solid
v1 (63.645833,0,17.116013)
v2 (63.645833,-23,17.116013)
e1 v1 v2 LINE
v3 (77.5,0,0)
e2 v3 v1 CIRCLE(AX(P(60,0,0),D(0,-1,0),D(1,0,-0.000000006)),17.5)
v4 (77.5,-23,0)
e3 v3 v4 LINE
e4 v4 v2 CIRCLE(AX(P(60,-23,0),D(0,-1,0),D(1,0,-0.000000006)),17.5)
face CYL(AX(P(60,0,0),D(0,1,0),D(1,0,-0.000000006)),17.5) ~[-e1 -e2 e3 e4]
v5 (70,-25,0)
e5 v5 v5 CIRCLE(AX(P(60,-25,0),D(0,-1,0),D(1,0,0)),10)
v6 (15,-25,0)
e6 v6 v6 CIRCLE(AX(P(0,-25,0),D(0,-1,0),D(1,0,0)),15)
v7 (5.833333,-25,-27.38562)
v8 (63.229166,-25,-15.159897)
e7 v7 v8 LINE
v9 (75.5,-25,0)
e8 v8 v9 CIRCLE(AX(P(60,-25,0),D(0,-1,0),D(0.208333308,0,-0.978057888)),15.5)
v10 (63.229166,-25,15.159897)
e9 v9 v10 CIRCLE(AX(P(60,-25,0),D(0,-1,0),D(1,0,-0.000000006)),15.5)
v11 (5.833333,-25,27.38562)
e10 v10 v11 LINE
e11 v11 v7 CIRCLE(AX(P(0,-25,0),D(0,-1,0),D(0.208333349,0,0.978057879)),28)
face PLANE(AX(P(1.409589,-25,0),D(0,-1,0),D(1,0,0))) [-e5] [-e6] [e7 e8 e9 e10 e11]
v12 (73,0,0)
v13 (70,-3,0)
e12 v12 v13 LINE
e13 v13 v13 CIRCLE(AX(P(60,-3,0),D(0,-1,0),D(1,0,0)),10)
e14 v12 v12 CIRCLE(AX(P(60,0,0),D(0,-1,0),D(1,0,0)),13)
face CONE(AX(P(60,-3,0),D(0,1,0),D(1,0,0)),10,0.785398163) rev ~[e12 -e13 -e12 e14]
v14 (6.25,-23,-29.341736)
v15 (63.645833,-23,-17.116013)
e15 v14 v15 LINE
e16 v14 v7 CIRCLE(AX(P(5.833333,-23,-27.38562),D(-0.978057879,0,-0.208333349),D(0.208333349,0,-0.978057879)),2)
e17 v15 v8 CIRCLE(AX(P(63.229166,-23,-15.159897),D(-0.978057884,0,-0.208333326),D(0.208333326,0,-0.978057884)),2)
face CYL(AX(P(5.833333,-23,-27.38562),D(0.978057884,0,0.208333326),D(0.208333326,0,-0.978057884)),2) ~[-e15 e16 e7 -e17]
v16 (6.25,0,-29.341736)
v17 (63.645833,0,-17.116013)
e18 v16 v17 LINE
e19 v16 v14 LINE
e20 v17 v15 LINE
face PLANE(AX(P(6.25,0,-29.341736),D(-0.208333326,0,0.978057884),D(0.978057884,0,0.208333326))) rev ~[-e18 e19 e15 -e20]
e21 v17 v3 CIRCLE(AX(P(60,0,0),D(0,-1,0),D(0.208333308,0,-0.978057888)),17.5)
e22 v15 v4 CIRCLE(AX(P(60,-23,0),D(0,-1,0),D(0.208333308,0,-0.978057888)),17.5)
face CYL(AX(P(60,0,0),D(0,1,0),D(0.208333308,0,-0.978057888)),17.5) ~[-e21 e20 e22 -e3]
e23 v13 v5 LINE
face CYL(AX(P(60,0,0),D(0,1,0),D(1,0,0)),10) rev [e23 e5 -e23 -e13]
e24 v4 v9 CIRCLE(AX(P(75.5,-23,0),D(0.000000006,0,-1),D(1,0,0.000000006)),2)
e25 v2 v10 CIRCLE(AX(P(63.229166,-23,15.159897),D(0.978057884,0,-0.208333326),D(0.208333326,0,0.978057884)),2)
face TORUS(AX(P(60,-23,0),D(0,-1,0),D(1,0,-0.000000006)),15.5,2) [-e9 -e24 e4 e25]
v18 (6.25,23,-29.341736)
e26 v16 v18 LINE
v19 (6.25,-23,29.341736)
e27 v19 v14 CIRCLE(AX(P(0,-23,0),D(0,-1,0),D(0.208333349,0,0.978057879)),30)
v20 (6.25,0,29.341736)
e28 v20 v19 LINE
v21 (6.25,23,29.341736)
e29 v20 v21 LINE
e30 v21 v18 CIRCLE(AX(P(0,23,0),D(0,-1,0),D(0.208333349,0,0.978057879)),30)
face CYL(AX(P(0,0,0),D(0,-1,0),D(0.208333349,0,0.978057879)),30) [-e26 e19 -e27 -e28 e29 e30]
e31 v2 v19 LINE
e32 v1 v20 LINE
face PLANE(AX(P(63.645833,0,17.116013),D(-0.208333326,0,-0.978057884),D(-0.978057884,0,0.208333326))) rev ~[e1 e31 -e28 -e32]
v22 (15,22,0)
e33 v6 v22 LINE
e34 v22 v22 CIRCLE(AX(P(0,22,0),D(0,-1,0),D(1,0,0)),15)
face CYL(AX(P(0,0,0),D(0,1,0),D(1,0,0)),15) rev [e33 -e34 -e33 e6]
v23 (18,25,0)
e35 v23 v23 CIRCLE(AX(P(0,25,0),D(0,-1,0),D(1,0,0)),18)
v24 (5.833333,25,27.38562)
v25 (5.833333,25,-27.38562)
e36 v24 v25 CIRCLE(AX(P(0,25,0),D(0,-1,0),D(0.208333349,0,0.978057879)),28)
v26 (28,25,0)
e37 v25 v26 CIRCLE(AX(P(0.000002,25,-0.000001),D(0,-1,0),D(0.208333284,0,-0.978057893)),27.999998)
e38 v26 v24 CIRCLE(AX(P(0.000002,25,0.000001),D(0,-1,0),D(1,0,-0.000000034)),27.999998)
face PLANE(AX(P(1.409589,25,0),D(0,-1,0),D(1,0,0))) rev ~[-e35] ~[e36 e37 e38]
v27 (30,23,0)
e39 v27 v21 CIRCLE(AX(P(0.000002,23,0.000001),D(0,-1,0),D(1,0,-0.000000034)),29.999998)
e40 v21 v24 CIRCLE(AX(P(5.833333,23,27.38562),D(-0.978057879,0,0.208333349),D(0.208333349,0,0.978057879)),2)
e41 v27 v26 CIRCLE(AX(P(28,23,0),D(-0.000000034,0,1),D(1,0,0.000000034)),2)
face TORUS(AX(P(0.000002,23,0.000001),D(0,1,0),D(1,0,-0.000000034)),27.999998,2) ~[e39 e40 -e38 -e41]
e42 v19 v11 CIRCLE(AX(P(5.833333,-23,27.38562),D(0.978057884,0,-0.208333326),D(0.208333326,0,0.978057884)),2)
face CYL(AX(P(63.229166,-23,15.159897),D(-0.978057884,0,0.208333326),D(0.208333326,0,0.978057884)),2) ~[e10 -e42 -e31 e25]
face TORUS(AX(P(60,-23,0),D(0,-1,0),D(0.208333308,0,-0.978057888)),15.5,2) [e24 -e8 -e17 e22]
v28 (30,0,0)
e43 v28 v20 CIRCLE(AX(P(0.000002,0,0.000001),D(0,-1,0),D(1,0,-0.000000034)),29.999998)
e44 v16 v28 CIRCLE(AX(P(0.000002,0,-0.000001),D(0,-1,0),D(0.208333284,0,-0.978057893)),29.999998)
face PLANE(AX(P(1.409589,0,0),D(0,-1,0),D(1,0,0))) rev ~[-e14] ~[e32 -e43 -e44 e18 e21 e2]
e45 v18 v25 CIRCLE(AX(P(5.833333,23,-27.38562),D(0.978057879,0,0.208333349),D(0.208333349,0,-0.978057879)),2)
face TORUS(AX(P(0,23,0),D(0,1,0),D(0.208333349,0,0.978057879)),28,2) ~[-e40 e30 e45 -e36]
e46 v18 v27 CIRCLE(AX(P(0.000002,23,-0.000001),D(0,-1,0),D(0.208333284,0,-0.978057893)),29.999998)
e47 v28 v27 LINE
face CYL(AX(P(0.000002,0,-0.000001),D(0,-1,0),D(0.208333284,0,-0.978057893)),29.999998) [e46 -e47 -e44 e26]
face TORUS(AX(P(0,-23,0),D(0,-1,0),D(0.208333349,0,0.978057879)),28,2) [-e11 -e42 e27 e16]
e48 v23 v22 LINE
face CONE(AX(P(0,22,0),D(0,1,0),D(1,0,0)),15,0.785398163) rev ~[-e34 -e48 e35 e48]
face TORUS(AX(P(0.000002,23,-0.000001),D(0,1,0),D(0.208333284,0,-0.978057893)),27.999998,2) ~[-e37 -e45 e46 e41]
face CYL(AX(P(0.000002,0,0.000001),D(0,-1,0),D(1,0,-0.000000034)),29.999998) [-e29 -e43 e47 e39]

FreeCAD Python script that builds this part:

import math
import FreeCAD as App
import Part
import Sketcher

V = App.Vector


def edges_at(feature, points):
    """Names of the edges that pass closest to the given points."""
    edges = feature.Shape.Edges
    near = lambda p: min(range(len(edges)), key=lambda i: edges[i].distToShape(Part.Vertex(*p))[0])
    return sorted({f"Edge{near(p) + 1}" for p in points})

doc = App.newDocument("Part")
params = doc.addObject("Spreadsheet::Sheet", "Params")
for row, (alias, value) in enumerate([
    ("sketch1_diameter", "30 mm"),
    ("sketch1_diameter2", "20 mm"),
    ("sketch1_radius", "30 mm"),
    ("sketch1_radius2", "17.5 mm"),
    ("pad1_length", "25 mm"),
    ("sketch2_diameter", "30 mm"),
    ("sketch2_radius", "29.999998 mm"),
    ("pad2_length", "25 mm"),
    ("fillet_radius", "2 mm"),
    ("chamfer_size", "3 mm"),
], start=1):
    params.set(f"A{row}", alias)
    params.set(f"B{row}", "=" + value)
    params.setAlias(f"B{row}", alias)

body = doc.addObject("PartDesign::Body", "Body")

# Sketch on XZ plane
sketch1 = body.newObject("Sketcher::SketchObject", "Sketch")
sketch1.AttachmentSupport = (doc.getObject("XZ_Plane"), [""])
sketch1.MapMode = "FlatFace"
sketch1.addGeometry([
    Part.ArcOfCircle(Part.Circle(V(0, 0, 0), V(0, 0, 1), 30), math.radians(77.9753), math.radians(282.0247)),  # 0
    Part.LineSegment(V(6.25, -29.341736, 0), V(63.645833, -17.116013, 0)),  # 1
    Part.ArcOfCircle(Part.Circle(V(60, 0, 0), V(0, 0, 1), 17.5), math.radians(-77.975302), math.radians(0)),  # 2
    Part.ArcOfCircle(Part.Circle(V(60, 0, 0), V(0, 0, 1), 17.5), math.radians(0), math.radians(77.975302)),  # 3
    Part.LineSegment(V(63.645833, 17.116013, 0), V(6.25, 29.341736, 0)),  # 4
    Part.Circle(V(0, 0, 0), V(0, 0, 1), 15),  # 5
    Part.Circle(V(60, 0, 0), V(0, 0, 1), 10),  # 6
], False)
sketch1.addConstraint([
    Sketcher.Constraint("Tangent", 0, 2, 1, 1),
    Sketcher.Constraint("Tangent", 1, 2, 2, 1),
    Sketcher.Constraint("Tangent", 2, 2, 3, 1),
    Sketcher.Constraint("Tangent", 3, 2, 4, 1),
    Sketcher.Constraint("Tangent", 4, 2, 0, 1),
    Sketcher.Constraint("Coincident", 0, 3, -1, 1),
    Sketcher.Constraint("Coincident", 5, 3, -1, 1),
    Sketcher.Constraint("Coincident", 6, 3, 2, 3),
    Sketcher.Constraint("Equal", 2, 3),
    Sketcher.Constraint("PointOnObject", 2, 3, -1),
    Sketcher.Constraint("PointOnObject", 2, 2, -1),
    Sketcher.Constraint("Diameter", 5, 30.0),
    Sketcher.Constraint("Diameter", 6, 20.0),
    Sketcher.Constraint("Radius", 0, 30.0),
    Sketcher.Constraint("Radius", 2, 17.5),
    Sketcher.Constraint("DistanceX", -1, 1, 2, 3, 60.0),
])
sketch1.setExpression("Constraints[11]", "Params.sketch1_diameter")
sketch1.setExpression("Constraints[12]", "Params.sketch1_diameter2")
sketch1.setExpression("Constraints[13]", "Params.sketch1_radius")
sketch1.setExpression("Constraints[14]", "Params.sketch1_radius2")
pad1 = body.newObject("PartDesign::Pad", "Pad")
pad1.Profile = sketch1
pad1.setExpression("Length", "Params.pad1_length")

# Sketch on XZ plane
sketch2 = body.newObject("Sketcher::SketchObject", "Sketch001")
sketch2.AttachmentSupport = (doc.getObject("XZ_Plane"), [""])
sketch2.MapMode = "FlatFace"
sketch2.addGeometry([
    Part.ArcOfCircle(Part.Circle(V(0.000002, -0.000001, 0), V(0, 0, 1), 29.999998), math.radians(-77.975304), math.radians(0.000002)),
    Part.ArcOfCircle(Part.Circle(V(0.000002, 0.000001, 0), V(0, 0, 1), 29.999998), math.radians(-0.000002), math.radians(77.975304)),
    Part.ArcOfCircle(Part.Circle(V(0, 0, 0), V(0, 0, 1), 30), math.radians(77.9753), math.radians(282.0247)),
    Part.Circle(V(0, 0, 0), V(0, 0, 1), 15),
], False)
sketch2.addConstraint([
    Sketcher.Constraint("Tangent", 0, 2, 1, 1),
    Sketcher.Constraint("Tangent", 1, 2, 2, 1),
    Sketcher.Constraint("Tangent", 2, 2, 0, 1),
    Sketcher.Constraint("Coincident", 0, 3, -1, 1),
    Sketcher.Constraint("Coincident", 3, 3, -1, 1),
    Sketcher.Constraint("PointOnObject", 0, 2, -1),
    Sketcher.Constraint("Vertical", 1, 2, 2, 2),
    Sketcher.Constraint("Diameter", 3, 30.0),
    Sketcher.Constraint("Radius", 0, 29.999998),
    Sketcher.Constraint("DistanceX", -1, 1, 1, 2, 6.25),
])
sketch2.setExpression("Constraints[7]", "Params.sketch2_diameter")
sketch2.setExpression("Constraints[8]", "Params.sketch2_radius")
pad2 = body.newObject("PartDesign::Pad", "Pad001")
pad2.Profile = sketch2
pad2.setExpression("Length", "Params.pad2_length")
pad2.Reversed = True
doc.recompute()

fillet = body.newObject("PartDesign::Fillet", "Fillet")
fillet.Base = (pad2, edges_at(pad2, [(-30, 25, 0), (34.948, -25, 23.229)]))
fillet.setExpression("Radius", "Params.fillet_radius")
doc.recompute()

chamfer = body.newObject("PartDesign::Chamfer", "Chamfer")
chamfer.Base = (fillet, edges_at(fillet, [(-15, 25, 0), (50, 0, 0)]))
chamfer.setExpression("Size", "Params.chamfer_size")

doc.recompute()
